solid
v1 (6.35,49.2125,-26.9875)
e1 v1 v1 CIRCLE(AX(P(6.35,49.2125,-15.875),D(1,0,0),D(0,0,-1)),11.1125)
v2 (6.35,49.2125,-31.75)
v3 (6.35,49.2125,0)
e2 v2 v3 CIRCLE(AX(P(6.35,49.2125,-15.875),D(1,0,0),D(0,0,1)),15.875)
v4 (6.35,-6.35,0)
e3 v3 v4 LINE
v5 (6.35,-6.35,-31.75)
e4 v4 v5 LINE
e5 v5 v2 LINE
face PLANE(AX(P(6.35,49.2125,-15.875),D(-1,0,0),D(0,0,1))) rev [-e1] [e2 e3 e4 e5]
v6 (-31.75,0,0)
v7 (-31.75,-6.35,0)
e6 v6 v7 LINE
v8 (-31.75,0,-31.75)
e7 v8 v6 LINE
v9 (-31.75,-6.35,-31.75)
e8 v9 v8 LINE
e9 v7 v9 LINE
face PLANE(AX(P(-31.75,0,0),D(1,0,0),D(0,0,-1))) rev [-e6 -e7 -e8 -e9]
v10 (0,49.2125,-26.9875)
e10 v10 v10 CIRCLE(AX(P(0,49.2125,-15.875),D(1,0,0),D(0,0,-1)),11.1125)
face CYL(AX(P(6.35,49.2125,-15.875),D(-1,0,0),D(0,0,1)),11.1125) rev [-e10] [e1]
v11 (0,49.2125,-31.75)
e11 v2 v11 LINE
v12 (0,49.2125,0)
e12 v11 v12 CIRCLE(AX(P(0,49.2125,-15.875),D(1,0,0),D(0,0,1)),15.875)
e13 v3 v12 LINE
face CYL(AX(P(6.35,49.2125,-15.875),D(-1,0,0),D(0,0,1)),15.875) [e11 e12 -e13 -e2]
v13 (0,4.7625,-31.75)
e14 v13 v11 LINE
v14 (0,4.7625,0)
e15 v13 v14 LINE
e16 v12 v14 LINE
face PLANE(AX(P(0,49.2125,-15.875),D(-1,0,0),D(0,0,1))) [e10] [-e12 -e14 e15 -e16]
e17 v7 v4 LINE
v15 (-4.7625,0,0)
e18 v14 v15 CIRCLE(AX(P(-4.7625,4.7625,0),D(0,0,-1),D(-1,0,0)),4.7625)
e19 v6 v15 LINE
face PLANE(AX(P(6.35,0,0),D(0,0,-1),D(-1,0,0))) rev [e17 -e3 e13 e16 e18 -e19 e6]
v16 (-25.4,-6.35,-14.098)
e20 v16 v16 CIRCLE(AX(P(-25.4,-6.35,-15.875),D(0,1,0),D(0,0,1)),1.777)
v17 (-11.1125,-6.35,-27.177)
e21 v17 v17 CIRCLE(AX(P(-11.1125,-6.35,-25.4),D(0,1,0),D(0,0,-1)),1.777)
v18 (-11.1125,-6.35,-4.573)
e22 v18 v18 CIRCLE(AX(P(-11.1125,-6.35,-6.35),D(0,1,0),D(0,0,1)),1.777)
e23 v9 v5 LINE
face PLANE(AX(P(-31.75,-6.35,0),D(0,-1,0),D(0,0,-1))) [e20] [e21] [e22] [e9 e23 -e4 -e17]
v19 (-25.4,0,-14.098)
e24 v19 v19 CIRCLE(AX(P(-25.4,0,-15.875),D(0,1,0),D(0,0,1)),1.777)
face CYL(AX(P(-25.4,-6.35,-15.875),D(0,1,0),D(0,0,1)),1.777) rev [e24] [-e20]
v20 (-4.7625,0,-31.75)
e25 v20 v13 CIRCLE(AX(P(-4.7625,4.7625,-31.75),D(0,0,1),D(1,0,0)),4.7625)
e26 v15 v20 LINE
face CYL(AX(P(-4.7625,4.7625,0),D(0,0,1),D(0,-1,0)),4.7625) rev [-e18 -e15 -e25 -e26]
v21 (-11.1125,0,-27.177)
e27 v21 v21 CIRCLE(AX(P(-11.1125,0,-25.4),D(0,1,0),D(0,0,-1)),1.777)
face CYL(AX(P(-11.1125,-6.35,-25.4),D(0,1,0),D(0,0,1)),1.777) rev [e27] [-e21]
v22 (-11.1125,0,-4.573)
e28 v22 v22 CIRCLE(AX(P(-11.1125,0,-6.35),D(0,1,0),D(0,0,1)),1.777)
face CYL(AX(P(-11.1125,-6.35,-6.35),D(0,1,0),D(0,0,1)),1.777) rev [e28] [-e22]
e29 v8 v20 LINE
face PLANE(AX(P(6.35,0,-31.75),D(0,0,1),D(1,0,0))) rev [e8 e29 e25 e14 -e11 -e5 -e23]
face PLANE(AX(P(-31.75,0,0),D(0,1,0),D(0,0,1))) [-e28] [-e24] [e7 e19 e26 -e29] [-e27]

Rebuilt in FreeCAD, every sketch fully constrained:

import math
import FreeCAD as App
import Part
import Sketcher

V = App.Vector
Q = App.Units.Quantity


def edges_at(feature, points):
    """Names of the edges that pass closest to the given points."""
    edges = feature.Shape.Edges
    near = lambda p: min(range(len(edges)), key=lambda i: edges[i].distToShape(Part.Vertex(*p))[0])
    return sorted({f"Edge{near(p) + 1}" for p in points})

doc = App.newDocument("Part")
body = doc.addObject("PartDesign::Body", "Body")

sketch1 = doc.addObject("Sketcher::SketchObject", "Sketch")
body.addObject(sketch1)
sketch1.AttachmentSupport = (doc.YZ_Plane, [""])
sketch1.MapMode = "FlatFace"
sketch1.addGeometry(Part.LineSegment(V(0, 0, 0), V(0, -32, 0)), False)
sketch1.addGeometry(Part.LineSegment(V(0, -32, 0), V(49, -32, 0)), False)
sketch1.addGeometry(Part.ArcOfCircle(Part.Circle(V(49, -16, 0), V(0, 0, 1), 16), math.radians(-90), math.radians(90)), False)
sketch1.addGeometry(Part.LineSegment(V(49, 0, 0), V(0, 0, 0)), False)
sketch1.addGeometry(Part.Circle(V(49, -16, 0), V(0, 0, 1), 11), False)
sketch1.addConstraint(Sketcher.Constraint("Coincident", 0, 2, 1, 1))
sketch1.addConstraint(Sketcher.Constraint("Tangent", 1, 2, 2, 1))
sketch1.addConstraint(Sketcher.Constraint("Tangent", 2, 2, 3, 1))
sketch1.addConstraint(Sketcher.Constraint("Coincident", 3, 2, 0, 1))
sketch1.addConstraint(Sketcher.Constraint("Vertical", 0))
sketch1.addConstraint(Sketcher.Constraint("Horizontal", 1))
sketch1.addConstraint(Sketcher.Constraint("Horizontal", 3))
sketch1.addConstraint(Sketcher.Constraint("Coincident", 3, 2, -1, 1))
sketch1.addConstraint(Sketcher.Constraint("Coincident", 4, 3, 2, 3))
sketch1.addConstraint(Sketcher.Constraint("Diameter", 4, Q("0.875 in")))
sketch1.addConstraint(Sketcher.Constraint("Radius", 2, Q("0.625 in")))
sketch1.addConstraint(Sketcher.Constraint("DistanceX", 1, 1, 1, 2, Q("1.9375 in")))
pad1 = doc.addObject("PartDesign::Pad", "Pad")
body.addObject(pad1)
pad1.Profile = sketch1
pad1.Length = Q("0.25 in")

sketch2 = doc.addObject("Sketcher::SketchObject", "Sketch001")
body.addObject(sketch2)
sketch2.AttachmentSupport = (doc.YZ_Plane, [""])
sketch2.MapMode = "FlatFace"
sketch2.AttachmentOffset = App.Placement(V(0, 0, 0.25 * 25.4), App.Rotation())
sketch2.addGeometry(Part.LineSegment(V(0, 0, 0), V(-6, 0, 0)), False)
sketch2.addGeometry(Part.LineSegment(V(-6, 0, 0), V(-6, -32, 0)), False)
sketch2.addGeometry(Part.LineSegment(V(-6, -32, 0), V(0, -32, 0)), False)
sketch2.addGeometry(Part.LineSegment(V(0, -32, 0), V(0, 0, 0)), False)
sketch2.addConstraint(Sketcher.Constraint("Coincident", 0, 2, 1, 1))
sketch2.addConstraint(Sketcher.Constraint("Coincident", 1, 2, 2, 1))
sketch2.addConstraint(Sketcher.Constraint("Coincident", 2, 2, 3, 1))
sketch2.addConstraint(Sketcher.Constraint("Coincident", 3, 2, 0, 1))
sketch2.addConstraint(Sketcher.Constraint("Horizontal", 0))
sketch2.addConstraint(Sketcher.Constraint("Vertical", 1))
sketch2.addConstraint(Sketcher.Constraint("Horizontal", 2))
sketch2.addConstraint(Sketcher.Constraint("Vertical", 3))
sketch2.addConstraint(Sketcher.Constraint("Coincident", 3, 2, -1, 1))
sketch2.addConstraint(Sketcher.Constraint("DistanceX", 0, 2, 0, 1, Q("0.25 in")))
sketch2.addConstraint(Sketcher.Constraint("DistanceY", 1, 2, 1, 1, Q("1.25 in")))
pad2 = doc.addObject("PartDesign::Pad", "Pad001")
body.addObject(pad2)
pad2.Profile = sketch2
pad2.Length = Q("1.5 in")
pad2.Reversed = True
doc.recompute()

fillet = doc.addObject("PartDesign::Fillet", "Fillet")
body.addObject(fillet)
fillet.Base = (pad2, edges_at(pad2, [(0, 0, -15.875)]))
fillet.Radius = Q("0.1875 in")

sketch3 = doc.addObject("Sketcher::SketchObject", "Sketch002")
body.addObject(sketch3)
sketch3.AttachmentSupport = (doc.XZ_Plane, [""])
sketch3.MapMode = "FlatFace"
sketch3.addGeometry(Part.Circle(V(-11.1, -6.3, 0), V(0, 0, 1), 1.8), False)
sketch3.addGeometry(Part.Circle(V(-25.4, -15.9, 0), V(0, 0, 1), 1.8), False)
sketch3.addGeometry(Part.Circle(V(-11.1, -25.4, 0), V(0, 0, 1), 1.8), False)
sketch3.addConstraint(Sketcher.Constraint("Equal", 0, 1))
sketch3.addConstraint(Sketcher.Constraint("Equal", 1, 2))
sketch3.addConstraint(Sketcher.Constraint("Vertical", 0, 3, 2, 3))
sketch3.addConstraint(Sketcher.Constraint("DistanceX", 1, 3, -1, 1, Q("1 in")))
sketch3.addConstraint(Sketcher.Constraint("DistanceY", 2, 3, -1, 1, Q("1 in")))
sketch3.addConstraint(Sketcher.Constraint("Diameter", 0, 3.554))
sketch3.addConstraint(Sketcher.Constraint("DistanceY", 0, 3, -1, 1, Q("0.25 in")))
sketch3.addConstraint(Sketcher.Constraint("DistanceX", 0, 3, -1, 1, Q("0.4375 in")))
sketch3.addConstraint(Sketcher.Constraint("DistanceY", 1, 3, -1, 1, Q("0.625 in")))
pocket1 = doc.addObject("PartDesign::Pocket", "Pocket")
body.addObject(pocket1)
pocket1.Profile = sketch3
pocket1.Type = "ThroughAll"
pocket1.Reversed = True

doc.recompute()
